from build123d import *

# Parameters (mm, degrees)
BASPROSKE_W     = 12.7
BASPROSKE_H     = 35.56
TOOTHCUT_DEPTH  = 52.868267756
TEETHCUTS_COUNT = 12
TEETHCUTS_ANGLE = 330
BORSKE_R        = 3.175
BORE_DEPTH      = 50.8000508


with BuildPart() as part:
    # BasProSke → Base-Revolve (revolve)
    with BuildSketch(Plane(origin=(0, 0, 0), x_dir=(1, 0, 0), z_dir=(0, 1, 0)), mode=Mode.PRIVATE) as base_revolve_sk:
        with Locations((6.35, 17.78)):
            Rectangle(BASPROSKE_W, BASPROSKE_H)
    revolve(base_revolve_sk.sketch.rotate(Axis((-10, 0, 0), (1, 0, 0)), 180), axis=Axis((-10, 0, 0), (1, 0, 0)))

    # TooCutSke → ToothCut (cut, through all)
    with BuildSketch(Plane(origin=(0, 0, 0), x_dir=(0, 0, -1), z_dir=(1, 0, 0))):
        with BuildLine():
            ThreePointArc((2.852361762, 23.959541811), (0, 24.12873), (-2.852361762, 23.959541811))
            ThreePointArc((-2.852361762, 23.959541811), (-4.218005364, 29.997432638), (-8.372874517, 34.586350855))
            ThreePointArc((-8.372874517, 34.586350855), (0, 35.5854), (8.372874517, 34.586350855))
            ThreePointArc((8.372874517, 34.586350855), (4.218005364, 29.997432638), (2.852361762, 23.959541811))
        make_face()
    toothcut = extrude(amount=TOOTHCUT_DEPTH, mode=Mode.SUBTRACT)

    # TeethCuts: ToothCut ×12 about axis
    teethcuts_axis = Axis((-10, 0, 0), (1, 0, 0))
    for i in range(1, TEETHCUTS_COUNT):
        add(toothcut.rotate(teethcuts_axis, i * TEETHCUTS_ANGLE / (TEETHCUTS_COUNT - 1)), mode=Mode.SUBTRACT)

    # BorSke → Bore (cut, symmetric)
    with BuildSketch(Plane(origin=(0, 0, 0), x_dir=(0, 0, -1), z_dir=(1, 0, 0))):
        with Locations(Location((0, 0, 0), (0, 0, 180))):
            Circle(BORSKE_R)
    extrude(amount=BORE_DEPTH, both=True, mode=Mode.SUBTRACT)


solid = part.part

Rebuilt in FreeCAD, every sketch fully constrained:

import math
import FreeCAD as App
import Part
import Sketcher
Q = App.Units.Quantity


def add_polygon(sketch, points):
    """Adds a closed chain of lines whose ends are joined by coincident constraints."""
    first, n = sketch.GeometryCount, len(points)
    for a, b in zip(points, points[1:] + points[:1]):
        sketch.addGeometry(Part.LineSegment(App.Vector(*a, 0), App.Vector(*b, 0)), False)
    for i in range(n):
        sketch.addConstraint(Sketcher.Constraint("Coincident", first + i, 2, first + (i + 1) % n, 1))

doc = App.newDocument("Part")
body = doc.addObject("PartDesign::Body", "Body")

# Sketch on XZ plane
sketch1 = body.newObject("Sketcher::SketchObject", "Sketch")
sketch1.AttachmentSupport = (doc.getObject("XZ_Plane"), [""])
sketch1.MapMode = "FlatFace"
add_polygon(sketch1, [(0, -36), (0, 0), (13, 0), (13, -36)])  # lines 0-3
sketch1.addConstraint([
    Sketcher.Constraint("Vertical", 0),
    Sketcher.Constraint("Horizontal", 1),
    Sketcher.Constraint("Vertical", 2),
    Sketcher.Constraint("Horizontal", 3),
    Sketcher.Constraint("Coincident", 0, 2, -1, 1),
    Sketcher.Constraint("DistanceX", 1, 1, 1, 2, Q("0.5 in")),
    Sketcher.Constraint("DistanceY", 0, 1, 0, 2, Q("1.4 in")),
])
revolution = body.newObject("PartDesign::Revolution", "Revolution")
revolution.Profile = sketch1
revolution.ReferenceAxis = (sketch1, ["H_Axis"])
revolution.Angle = 360

# Sketch on YZ plane
sketch2 = body.newObject("Sketcher::SketchObject", "Sketch001")
sketch2.AttachmentSupport = (doc.getObject("YZ_Plane"), [""])
sketch2.MapMode = "FlatFace"
sketch2.addGeometry([
    Part.ArcOfCircle(Part.Circle(App.Vector(0, 0, 0), App.Vector(0, 0, 1), 24), math.radians(-6.79), math.radians(6.79)),
    Part.ArcOfCircle(Part.Circle(App.Vector(24, -15, 0), App.Vector(0, 0, 1), 12), math.radians(33), math.radians(92)),
    Part.ArcOfCircle(Part.Circle(App.Vector(0, 0, 0), App.Vector(0, 0, 1), 36), math.radians(-14), math.radians(14)),
    Part.ArcOfCircle(Part.Circle(App.Vector(24, 15, 0), App.Vector(0, 0, 1), 12), math.radians(-92), math.radians(-33)),
], False)
sketch2.addConstraint([
    Sketcher.Constraint("Coincident", 0, 1, 1, 2),
    Sketcher.Constraint("Coincident", 1, 1, 2, 1),
    Sketcher.Constraint("Coincident", 2, 2, 3, 2),
    Sketcher.Constraint("Coincident", 3, 1, 0, 2),
    Sketcher.Constraint("Coincident", 0, 3, -1, 1),
    Sketcher.Constraint("Coincident", 2, 3, -1, 1),
    Sketcher.Constraint("Equal", 1, 3),
    Sketcher.Constraint("Symmetric", 1, 3, 3, 3, -1),
    Sketcher.Constraint("Radius", 1, Q("0.48 in")),
    Sketcher.Constraint("Radius", 2, Q("1.401 in")),
    Sketcher.Constraint("Radius", 0, 24.12873),
    Sketcher.Constraint("DistanceX", -1, 1, 1, 3, 24.376971),
    Sketcher.Constraint("DistanceX", -1, 1, 0, 1, 23.959542),
])
pocket1 = body.newObject("PartDesign::Pocket", "Pocket")
pocket1.Profile = sketch2
pocket1.Type = "ThroughAll"
pocket1.Reversed = True
doc.recompute()

polarpattern = body.newObject("PartDesign::PolarPattern", "PolarPattern")
polarpattern.Originals = [pocket1]
polarpattern.Axis = (doc.getObject("X_Axis"), [""])
polarpattern.Angle = 360
polarpattern.Occurrences = 12
body.Tip = polarpattern

# Sketch on YZ plane
sketch3 = body.newObject("Sketcher::SketchObject", "Sketch002")
sketch3.AttachmentSupport = (doc.getObject("YZ_Plane"), [""])
sketch3.MapMode = "FlatFace"
sketch3.addGeometry(Part.Circle(App.Vector(0, 0, 0), App.Vector(0, 0, 1), 3.2), False)
sketch3.addConstraint([
    Sketcher.Constraint("Coincident", 0, 3, -1, 1),
    Sketcher.Constraint("Diameter", 0, Q("0.25 in")),
])
pocket2 = body.newObject("PartDesign::Pocket", "Pocket001")
pocket2.Profile = sketch3
pocket2.Length = 101.600102
pocket2.Midplane = True

doc.recompute()
